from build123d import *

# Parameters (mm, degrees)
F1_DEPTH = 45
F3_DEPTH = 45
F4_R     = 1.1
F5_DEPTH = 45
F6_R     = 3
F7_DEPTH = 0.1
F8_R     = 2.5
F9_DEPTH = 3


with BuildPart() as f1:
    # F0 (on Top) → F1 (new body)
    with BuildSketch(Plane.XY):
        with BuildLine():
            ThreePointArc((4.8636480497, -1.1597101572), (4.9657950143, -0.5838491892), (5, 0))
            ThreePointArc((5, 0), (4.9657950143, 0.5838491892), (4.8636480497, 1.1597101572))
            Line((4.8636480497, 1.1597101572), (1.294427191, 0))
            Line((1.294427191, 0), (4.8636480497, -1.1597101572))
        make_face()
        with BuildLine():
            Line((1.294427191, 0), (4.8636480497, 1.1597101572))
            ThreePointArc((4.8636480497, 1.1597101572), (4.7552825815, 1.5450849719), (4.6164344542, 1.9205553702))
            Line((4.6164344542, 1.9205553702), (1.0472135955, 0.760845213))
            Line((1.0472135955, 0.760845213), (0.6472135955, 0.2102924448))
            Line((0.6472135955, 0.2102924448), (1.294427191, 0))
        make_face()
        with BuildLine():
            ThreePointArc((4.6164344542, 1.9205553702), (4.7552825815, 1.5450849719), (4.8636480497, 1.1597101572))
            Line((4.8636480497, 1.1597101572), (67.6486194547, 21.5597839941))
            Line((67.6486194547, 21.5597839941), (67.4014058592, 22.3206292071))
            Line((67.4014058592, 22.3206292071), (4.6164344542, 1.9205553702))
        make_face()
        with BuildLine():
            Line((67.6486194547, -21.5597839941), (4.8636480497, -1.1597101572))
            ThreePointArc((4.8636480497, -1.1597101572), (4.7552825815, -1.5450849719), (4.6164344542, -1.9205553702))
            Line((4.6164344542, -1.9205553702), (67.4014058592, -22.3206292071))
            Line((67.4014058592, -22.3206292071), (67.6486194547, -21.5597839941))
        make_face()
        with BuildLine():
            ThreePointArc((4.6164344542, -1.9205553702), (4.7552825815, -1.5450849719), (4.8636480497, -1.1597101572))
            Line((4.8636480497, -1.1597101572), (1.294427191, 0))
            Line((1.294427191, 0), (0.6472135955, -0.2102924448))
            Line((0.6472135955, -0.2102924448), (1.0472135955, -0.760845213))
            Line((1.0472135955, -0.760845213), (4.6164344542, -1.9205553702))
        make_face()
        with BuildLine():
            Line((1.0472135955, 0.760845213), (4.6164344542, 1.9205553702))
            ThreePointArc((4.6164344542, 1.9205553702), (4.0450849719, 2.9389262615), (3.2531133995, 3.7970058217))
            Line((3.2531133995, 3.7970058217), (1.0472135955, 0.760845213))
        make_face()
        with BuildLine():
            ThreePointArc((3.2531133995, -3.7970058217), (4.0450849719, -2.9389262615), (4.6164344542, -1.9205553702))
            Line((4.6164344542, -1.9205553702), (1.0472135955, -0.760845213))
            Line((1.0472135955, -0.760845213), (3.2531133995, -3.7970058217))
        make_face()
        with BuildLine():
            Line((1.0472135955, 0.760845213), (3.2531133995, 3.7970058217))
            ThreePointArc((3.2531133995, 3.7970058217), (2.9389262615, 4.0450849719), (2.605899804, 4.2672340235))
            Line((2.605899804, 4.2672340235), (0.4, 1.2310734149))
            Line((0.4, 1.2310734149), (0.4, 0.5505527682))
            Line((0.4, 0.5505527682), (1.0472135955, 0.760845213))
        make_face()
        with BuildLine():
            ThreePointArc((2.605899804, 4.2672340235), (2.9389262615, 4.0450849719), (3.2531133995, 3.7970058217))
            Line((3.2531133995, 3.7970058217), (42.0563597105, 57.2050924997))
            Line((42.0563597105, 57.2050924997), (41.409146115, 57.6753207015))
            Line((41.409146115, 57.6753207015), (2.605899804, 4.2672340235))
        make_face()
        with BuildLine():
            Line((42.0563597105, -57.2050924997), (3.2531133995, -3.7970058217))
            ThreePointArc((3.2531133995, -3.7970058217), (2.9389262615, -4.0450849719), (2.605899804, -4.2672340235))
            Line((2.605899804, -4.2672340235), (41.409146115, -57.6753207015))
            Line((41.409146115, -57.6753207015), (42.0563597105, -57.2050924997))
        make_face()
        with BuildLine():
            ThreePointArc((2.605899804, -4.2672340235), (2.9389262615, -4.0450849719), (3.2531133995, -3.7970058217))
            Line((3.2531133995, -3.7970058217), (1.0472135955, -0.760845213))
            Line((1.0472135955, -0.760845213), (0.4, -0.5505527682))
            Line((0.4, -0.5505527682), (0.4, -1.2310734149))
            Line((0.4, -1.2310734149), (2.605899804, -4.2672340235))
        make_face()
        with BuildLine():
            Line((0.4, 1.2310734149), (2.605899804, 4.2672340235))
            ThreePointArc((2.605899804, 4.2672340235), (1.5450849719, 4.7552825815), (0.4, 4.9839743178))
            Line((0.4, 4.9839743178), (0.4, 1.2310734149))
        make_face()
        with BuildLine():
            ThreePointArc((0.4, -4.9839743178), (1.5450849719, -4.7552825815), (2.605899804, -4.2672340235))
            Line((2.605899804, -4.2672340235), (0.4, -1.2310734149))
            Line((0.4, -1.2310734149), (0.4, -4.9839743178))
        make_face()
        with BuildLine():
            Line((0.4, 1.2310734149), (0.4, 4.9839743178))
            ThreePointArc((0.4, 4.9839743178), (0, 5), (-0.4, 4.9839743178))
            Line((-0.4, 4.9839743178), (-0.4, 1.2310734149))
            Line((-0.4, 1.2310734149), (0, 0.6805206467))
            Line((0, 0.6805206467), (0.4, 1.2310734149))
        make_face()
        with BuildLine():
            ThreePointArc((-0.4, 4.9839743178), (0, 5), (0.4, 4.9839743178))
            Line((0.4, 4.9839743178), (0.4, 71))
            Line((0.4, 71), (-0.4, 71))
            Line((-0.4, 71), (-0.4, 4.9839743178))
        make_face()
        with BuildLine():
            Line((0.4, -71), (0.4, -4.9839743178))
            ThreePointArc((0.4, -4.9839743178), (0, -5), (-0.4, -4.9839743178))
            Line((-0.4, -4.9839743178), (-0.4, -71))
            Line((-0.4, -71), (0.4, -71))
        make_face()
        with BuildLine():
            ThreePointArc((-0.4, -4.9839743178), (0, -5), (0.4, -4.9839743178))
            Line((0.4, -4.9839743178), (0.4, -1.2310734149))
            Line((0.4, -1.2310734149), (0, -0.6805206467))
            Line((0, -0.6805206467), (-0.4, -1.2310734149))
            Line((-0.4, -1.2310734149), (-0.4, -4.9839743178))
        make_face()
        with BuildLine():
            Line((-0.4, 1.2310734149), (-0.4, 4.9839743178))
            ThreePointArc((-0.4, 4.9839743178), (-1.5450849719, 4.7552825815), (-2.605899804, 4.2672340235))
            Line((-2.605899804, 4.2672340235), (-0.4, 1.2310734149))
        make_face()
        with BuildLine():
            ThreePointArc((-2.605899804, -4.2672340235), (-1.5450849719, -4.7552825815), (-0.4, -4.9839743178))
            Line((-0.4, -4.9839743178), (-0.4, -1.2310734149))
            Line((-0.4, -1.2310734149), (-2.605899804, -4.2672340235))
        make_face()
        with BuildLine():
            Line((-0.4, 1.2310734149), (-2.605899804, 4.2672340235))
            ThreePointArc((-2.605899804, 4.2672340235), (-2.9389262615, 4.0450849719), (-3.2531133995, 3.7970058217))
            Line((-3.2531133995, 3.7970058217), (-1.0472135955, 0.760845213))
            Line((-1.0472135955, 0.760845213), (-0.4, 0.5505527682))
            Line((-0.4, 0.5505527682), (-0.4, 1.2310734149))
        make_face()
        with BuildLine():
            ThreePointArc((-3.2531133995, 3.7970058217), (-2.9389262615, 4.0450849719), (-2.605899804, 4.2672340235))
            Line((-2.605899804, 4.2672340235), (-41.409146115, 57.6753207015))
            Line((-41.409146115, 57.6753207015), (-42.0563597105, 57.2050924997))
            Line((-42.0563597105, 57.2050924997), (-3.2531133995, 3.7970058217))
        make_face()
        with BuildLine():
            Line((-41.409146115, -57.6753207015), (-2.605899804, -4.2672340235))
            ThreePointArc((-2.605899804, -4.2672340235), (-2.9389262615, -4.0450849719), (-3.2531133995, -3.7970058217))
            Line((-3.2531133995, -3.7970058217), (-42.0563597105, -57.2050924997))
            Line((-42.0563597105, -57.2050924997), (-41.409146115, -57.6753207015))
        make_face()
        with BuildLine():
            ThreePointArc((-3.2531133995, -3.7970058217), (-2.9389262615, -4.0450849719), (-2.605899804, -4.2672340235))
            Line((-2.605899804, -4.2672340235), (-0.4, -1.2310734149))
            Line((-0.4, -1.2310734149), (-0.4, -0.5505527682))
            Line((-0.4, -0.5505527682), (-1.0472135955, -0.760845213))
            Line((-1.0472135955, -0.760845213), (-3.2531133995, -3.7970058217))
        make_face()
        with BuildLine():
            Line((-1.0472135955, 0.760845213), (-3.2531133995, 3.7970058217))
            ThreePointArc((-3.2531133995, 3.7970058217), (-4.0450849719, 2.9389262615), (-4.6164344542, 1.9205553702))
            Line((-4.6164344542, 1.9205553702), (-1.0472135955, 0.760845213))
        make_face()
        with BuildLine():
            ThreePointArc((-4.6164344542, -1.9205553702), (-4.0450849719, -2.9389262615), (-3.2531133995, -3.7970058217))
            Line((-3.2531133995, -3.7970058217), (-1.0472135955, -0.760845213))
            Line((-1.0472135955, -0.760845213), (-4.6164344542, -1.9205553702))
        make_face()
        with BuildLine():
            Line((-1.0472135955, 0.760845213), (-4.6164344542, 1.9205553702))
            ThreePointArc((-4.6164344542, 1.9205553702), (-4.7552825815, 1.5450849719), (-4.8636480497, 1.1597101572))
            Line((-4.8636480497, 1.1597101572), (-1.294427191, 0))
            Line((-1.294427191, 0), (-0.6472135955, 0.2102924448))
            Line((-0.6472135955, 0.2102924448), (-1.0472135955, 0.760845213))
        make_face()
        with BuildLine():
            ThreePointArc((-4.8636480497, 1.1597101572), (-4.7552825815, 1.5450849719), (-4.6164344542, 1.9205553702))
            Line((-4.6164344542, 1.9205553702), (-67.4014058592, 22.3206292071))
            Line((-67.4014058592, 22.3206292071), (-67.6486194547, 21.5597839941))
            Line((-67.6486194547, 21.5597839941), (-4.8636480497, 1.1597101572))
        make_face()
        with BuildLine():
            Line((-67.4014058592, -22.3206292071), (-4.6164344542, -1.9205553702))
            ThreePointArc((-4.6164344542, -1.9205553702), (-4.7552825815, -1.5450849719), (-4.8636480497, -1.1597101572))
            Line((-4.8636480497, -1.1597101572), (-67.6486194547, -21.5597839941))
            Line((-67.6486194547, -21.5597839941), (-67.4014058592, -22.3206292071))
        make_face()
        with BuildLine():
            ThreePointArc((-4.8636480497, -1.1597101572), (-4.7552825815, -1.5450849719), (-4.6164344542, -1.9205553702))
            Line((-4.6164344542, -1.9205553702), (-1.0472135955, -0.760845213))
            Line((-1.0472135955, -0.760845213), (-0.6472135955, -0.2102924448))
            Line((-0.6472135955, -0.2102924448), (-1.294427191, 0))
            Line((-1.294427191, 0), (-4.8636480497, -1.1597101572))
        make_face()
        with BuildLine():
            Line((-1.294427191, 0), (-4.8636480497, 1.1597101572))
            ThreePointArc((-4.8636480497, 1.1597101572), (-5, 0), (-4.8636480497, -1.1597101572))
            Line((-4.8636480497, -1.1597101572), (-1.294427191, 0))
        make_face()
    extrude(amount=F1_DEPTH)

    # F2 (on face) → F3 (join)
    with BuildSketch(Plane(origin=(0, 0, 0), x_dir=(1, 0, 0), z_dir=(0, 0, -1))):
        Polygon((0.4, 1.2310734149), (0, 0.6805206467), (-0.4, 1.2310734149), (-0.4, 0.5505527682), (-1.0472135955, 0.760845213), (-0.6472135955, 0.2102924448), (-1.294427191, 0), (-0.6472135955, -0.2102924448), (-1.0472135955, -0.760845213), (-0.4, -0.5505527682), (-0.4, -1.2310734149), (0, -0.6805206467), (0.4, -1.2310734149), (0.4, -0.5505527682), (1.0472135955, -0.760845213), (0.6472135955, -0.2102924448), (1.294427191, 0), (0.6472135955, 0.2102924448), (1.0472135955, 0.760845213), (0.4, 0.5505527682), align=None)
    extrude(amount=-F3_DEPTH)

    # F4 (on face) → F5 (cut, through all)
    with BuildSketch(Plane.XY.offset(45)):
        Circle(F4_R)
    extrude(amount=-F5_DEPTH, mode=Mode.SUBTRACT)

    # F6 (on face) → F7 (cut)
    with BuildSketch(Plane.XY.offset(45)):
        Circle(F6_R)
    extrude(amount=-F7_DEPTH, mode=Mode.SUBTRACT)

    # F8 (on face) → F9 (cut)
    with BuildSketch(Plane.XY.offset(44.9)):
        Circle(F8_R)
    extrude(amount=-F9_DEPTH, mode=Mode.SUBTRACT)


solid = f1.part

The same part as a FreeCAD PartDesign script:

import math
import FreeCAD as App
import Part
import Sketcher
Q = App.Units.Quantity

doc = App.newDocument("Part")
body = doc.addObject("PartDesign::Body", "Body")

sketch1 = doc.addObject("Sketcher::SketchObject", "Sketch")
body.addObject(sketch1)
sketch1.AttachmentSupport = (doc.XY_Plane, [""])
sketch1.MapMode = "FlatFace"
sketch1.addGeometry(Part.LineSegment(App.Vector(-67.6, 21.6, 0), App.Vector(-4.9, 1.2, 0)), False)
sketch1.addGeometry(Part.ArcOfCircle(Part.Circle(App.Vector(0, 0, 0), App.Vector(0, 0, 1), 5), math.radians(167), math.radians(193)), False)
sketch1.addGeometry(Part.LineSegment(App.Vector(-4.9, -1.2, 0), App.Vector(-67.6, -21.6, 0)), False)
sketch1.addGeometry(Part.LineSegment(App.Vector(-67.6, -21.6, 0), App.Vector(-67.4, -22.3, 0)), False)
sketch1.addGeometry(Part.LineSegment(App.Vector(-67.4, -22.3, 0), App.Vector(-4.6, -1.9, 0)), False)
sketch1.addGeometry(Part.ArcOfCircle(Part.Circle(App.Vector(0, 0, 0), App.Vector(0, 0, 1), 5), math.radians(-157), math.radians(-131)), False)
sketch1.addGeometry(Part.LineSegment(App.Vector(-3.3, -3.8, 0), App.Vector(-42.1, -57.2, 0)), False)
sketch1.addGeometry(Part.LineSegment(App.Vector(-42.1, -57.2, 0), App.Vector(-41.4, -57.7, 0)), False)
sketch1.addGeometry(Part.LineSegment(App.Vector(-41.4, -57.7, 0), App.Vector(-2.6, -4.3, 0)), False)
sketch1.addGeometry(Part.ArcOfCircle(Part.Circle(App.Vector(0, 0, 0), App.Vector(0, 0, 1), 5), math.radians(-121), math.radians(-95)), False)
sketch1.addGeometry(Part.LineSegment(App.Vector(-0.4, -5, 0), App.Vector(-0.4, -71, 0)), False)
sketch1.addGeometry(Part.LineSegment(App.Vector(-0.4, -71, 0), App.Vector(0.4, -71, 0)), False)
sketch1.addGeometry(Part.LineSegment(App.Vector(0.4, -71, 0), App.Vector(0.4, -5, 0)), False)
sketch1.addGeometry(Part.ArcOfCircle(Part.Circle(App.Vector(0, 0, 0), App.Vector(0, 0, 1), 5), math.radians(-85), math.radians(-59)), False)
sketch1.addGeometry(Part.LineSegment(App.Vector(2.6, -4.3, 0), App.Vector(41.4, -57.7, 0)), False)
sketch1.addGeometry(Part.LineSegment(App.Vector(41.4, -57.7, 0), App.Vector(42.1, -57.2, 0)), False)
sketch1.addGeometry(Part.LineSegment(App.Vector(42.1, -57.2, 0), App.Vector(3.3, -3.8, 0)), False)
sketch1.addGeometry(Part.ArcOfCircle(Part.Circle(App.Vector(0, 0, 0), App.Vector(0, 0, 1), 5), math.radians(-49), math.radians(-23)), False)
sketch1.addGeometry(Part.LineSegment(App.Vector(4.6, -1.9, 0), App.Vector(67.4, -22.3, 0)), False)
sketch1.addGeometry(Part.LineSegment(App.Vector(67.4, -22.3, 0), App.Vector(67.6, -21.6, 0)), False)
sketch1.addGeometry(Part.LineSegment(App.Vector(67.6, -21.6, 0), App.Vector(4.9, -1.2, 0)), False)
sketch1.addGeometry(Part.ArcOfCircle(Part.Circle(App.Vector(0, 0, 0), App.Vector(0, 0, 1), 5), math.radians(-13.41), math.radians(0)), False)
sketch1.addGeometry(Part.ArcOfCircle(Part.Circle(App.Vector(0, 0, 0), App.Vector(0, 0, 1), 5), math.radians(0), math.radians(13.41)), False)
sketch1.addGeometry(Part.LineSegment(App.Vector(4.9, 1.2, 0), App.Vector(67.6, 21.6, 0)), False)
sketch1.addGeometry(Part.LineSegment(App.Vector(67.6, 21.6, 0), App.Vector(67.4, 22.3, 0)), False)
sketch1.addGeometry(Part.LineSegment(App.Vector(67.4, 22.3, 0), App.Vector(4.6, 1.9, 0)), False)
sketch1.addGeometry(Part.ArcOfCircle(Part.Circle(App.Vector(0, 0, 0), App.Vector(0, 0, 1), 5), math.radians(23), math.radians(49)), False)
sketch1.addGeometry(Part.LineSegment(App.Vector(3.3, 3.8, 0), App.Vector(42.1, 57.2, 0)), False)
sketch1.addGeometry(Part.LineSegment(App.Vector(42.1, 57.2, 0), App.Vector(41.4, 57.7, 0)), False)
sketch1.addGeometry(Part.LineSegment(App.Vector(41.4, 57.7, 0), App.Vector(2.6, 4.3, 0)), False)
sketch1.addGeometry(Part.ArcOfCircle(Part.Circle(App.Vector(0, 0, 0), App.Vector(0, 0, 1), 5), math.radians(59), math.radians(85)), False)
sketch1.addGeometry(Part.LineSegment(App.Vector(0.4, 5, 0), App.Vector(0.4, 71, 0)), False)
sketch1.addGeometry(Part.LineSegment(App.Vector(0.4, 71, 0), App.Vector(-0.4, 71, 0)), False)
sketch1.addGeometry(Part.LineSegment(App.Vector(-0.4, 71, 0), App.Vector(-0.4, 5, 0)), False)
sketch1.addGeometry(Part.ArcOfCircle(Part.Circle(App.Vector(0, 0, 0), App.Vector(0, 0, 1), 5), math.radians(95), math.radians(121)), False)
sketch1.addGeometry(Part.LineSegment(App.Vector(-2.6, 4.3, 0), App.Vector(-41.4, 57.7, 0)), False)
sketch1.addGeometry(Part.LineSegment(App.Vector(-41.4, 57.7, 0), App.Vector(-42.1, 57.2, 0)), False)
sketch1.addGeometry(Part.LineSegment(App.Vector(-42.1, 57.2, 0), App.Vector(-3.3, 3.8, 0)), False)
sketch1.addGeometry(Part.ArcOfCircle(Part.Circle(App.Vector(0, 0, 0), App.Vector(0, 0, 1), 5), math.radians(131), math.radians(157)), False)
sketch1.addGeometry(Part.LineSegment(App.Vector(-4.6, 1.9, 0), App.Vector(-67.4, 22.3, 0)), False)
sketch1.addGeometry(Part.LineSegment(App.Vector(-67.4, 22.3, 0), App.Vector(-67.6, 21.6, 0)), False)
sketch1.addGeometry(Part.LineSegment(App.Vector(-0.6, -0.2, 0), App.Vector(-1.3, 0, 0)), False)
sketch1.addGeometry(Part.LineSegment(App.Vector(-1.3, 0, 0), App.Vector(-0.6, 0.2, 0)), False)
sketch1.addGeometry(Part.LineSegment(App.Vector(-0.6, 0.2, 0), App.Vector(-1, 0.8, 0)), False)
sketch1.addGeometry(Part.LineSegment(App.Vector(-1, 0.8, 0), App.Vector(-0.4, 0.6, 0)), False)
sketch1.addGeometry(Part.LineSegment(App.Vector(-0.4, 0.6, 0), App.Vector(-0.4, 1.2, 0)), False)
sketch1.addGeometry(Part.LineSegment(App.Vector(-0.4, 1.2, 0), App.Vector(0, 0.7, 0)), False)
sketch1.addGeometry(Part.LineSegment(App.Vector(0, 0.7, 0), App.Vector(0.4, 1.2, 0)), False)
sketch1.addGeometry(Part.LineSegment(App.Vector(0.4, 1.2, 0), App.Vector(0.4, 0.6, 0)), False)
sketch1.addGeometry(Part.LineSegment(App.Vector(0.4, 0.6, 0), App.Vector(1, 0.8, 0)), False)
sketch1.addGeometry(Part.LineSegment(App.Vector(1, 0.8, 0), App.Vector(0.6, 0.2, 0)), False)
sketch1.addGeometry(Part.LineSegment(App.Vector(0.6, 0.2, 0), App.Vector(1.3, 0, 0)), False)
sketch1.addGeometry(Part.LineSegment(App.Vector(1.3, 0, 0), App.Vector(0.6, -0.2, 0)), False)
sketch1.addGeometry(Part.LineSegment(App.Vector(0.6, -0.2, 0), App.Vector(1, -0.8, 0)), False)
sketch1.addGeometry(Part.LineSegment(App.Vector(1, -0.8, 0), App.Vector(0.4, -0.6, 0)), False)
sketch1.addGeometry(Part.LineSegment(App.Vector(0.4, -0.6, 0), App.Vector(0.4, -1.2, 0)), False)
sketch1.addGeometry(Part.LineSegment(App.Vector(0.4, -1.2, 0), App.Vector(0, -0.7, 0)), False)
sketch1.addGeometry(Part.LineSegment(App.Vector(0, -0.7, 0), App.Vector(-0.4, -1.2, 0)), False)
sketch1.addGeometry(Part.LineSegment(App.Vector(-0.4, -1.2, 0), App.Vector(-0.4, -0.6, 0)), False)
sketch1.addGeometry(Part.LineSegment(App.Vector(-0.4, -0.6, 0), App.Vector(-1, -0.8, 0)), False)
sketch1.addGeometry(Part.LineSegment(App.Vector(-1, -0.8, 0), App.Vector(-0.6, -0.2, 0)), False)
sketch1.addConstraint(Sketcher.Constraint("Coincident", 0, 2, 1, 1))
sketch1.addConstraint(Sketcher.Constraint("Coincident", 1, 2, 2, 1))
sketch1.addConstraint(Sketcher.Constraint("Coincident", 2, 2, 3, 1))
sketch1.addConstraint(Sketcher.Constraint("Coincident", 3, 2, 4, 1))
sketch1.addConstraint(Sketcher.Constraint("Coincident", 4, 2, 5, 1))
sketch1.addConstraint(Sketcher.Constraint("Coincident", 5, 2, 6, 1))
sketch1.addConstraint(Sketcher.Constraint("Coincident", 6, 2, 7, 1))
sketch1.addConstraint(Sketcher.Constraint("Coincident", 7, 2, 8, 1))
sketch1.addConstraint(Sketcher.Constraint("Coincident", 8, 2, 9, 1))
sketch1.addConstraint(Sketcher.Constraint("Coincident", 9, 2, 10, 1))
sketch1.addConstraint(Sketcher.Constraint("Coincident", 10, 2, 11, 1))
sketch1.addConstraint(Sketcher.Constraint("Coincident", 11, 2, 12, 1))
sketch1.addConstraint(Sketcher.Constraint("Coincident", 12, 2, 13, 1))
sketch1.addConstraint(Sketcher.Constraint("Coincident", 13, 2, 14, 1))
sketch1.addConstraint(Sketcher.Constraint("Coincident", 14, 2, 15, 1))
sketch1.addConstraint(Sketcher.Constraint("Coincident", 15, 2, 16, 1))
sketch1.addConstraint(Sketcher.Constraint("Coincident", 16, 2, 17, 1))
sketch1.addConstraint(Sketcher.Constraint("Coincident", 17, 2, 18, 1))
sketch1.addConstraint(Sketcher.Constraint("Coincident", 18, 2, 19, 1))
sketch1.addConstraint(Sketcher.Constraint("Coincident", 19, 2, 20, 1))
sketch1.addConstraint(Sketcher.Constraint("Coincident", 20, 2, 21, 1))
sketch1.addConstraint(Sketcher.Constraint("Tangent", 21, 2, 22, 1))
sketch1.addConstraint(Sketcher.Constraint("Coincident", 22, 2, 23, 1))
sketch1.addConstraint(Sketcher.Constraint("Coincident", 23, 2, 24, 1))
sketch1.addConstraint(Sketcher.Constraint("Coincident", 24, 2, 25, 1))
sketch1.addConstraint(Sketcher.Constraint("Coincident", 25, 2, 26, 1))
sketch1.addConstraint(Sketcher.Constraint("Coincident", 26, 2, 27, 1))
sketch1.addConstraint(Sketcher.Constraint("Coincident", 27, 2, 28, 1))
sketch1.addConstraint(Sketcher.Constraint("Coincident", 28, 2, 29, 1))
sketch1.addConstraint(Sketcher.Constraint("Coincident", 29, 2, 30, 1))
sketch1.addConstraint(Sketcher.Constraint("Coincident", 30, 2, 31, 1))
sketch1.addConstraint(Sketcher.Constraint("Coincident", 31, 2, 32, 1))
sketch1.addConstraint(Sketcher.Constraint("Coincident", 32, 2, 33, 1))
sketch1.addConstraint(Sketcher.Constraint("Coincident", 33, 2, 34, 1))
sketch1.addConstraint(Sketcher.Constraint("Coincident", 34, 2, 35, 1))
sketch1.addConstraint(Sketcher.Constraint("Coincident", 35, 2, 36, 1))
sketch1.addConstraint(Sketcher.Constraint("Coincident", 36, 2, 37, 1))
sketch1.addConstraint(Sketcher.Constraint("Coincident", 37, 2, 38, 1))
sketch1.addConstraint(Sketcher.Constraint("Coincident", 38, 2, 39, 1))
sketch1.addConstraint(Sketcher.Constraint("Coincident", 39, 2, 40, 1))
sketch1.addConstraint(Sketcher.Constraint("Coincident", 40, 2, 0, 1))
sketch1.addConstraint(Sketcher.Constraint("Coincident", 41, 2, 42, 1))
sketch1.addConstraint(Sketcher.Constraint("Coincident", 42, 2, 43, 1))
sketch1.addConstraint(Sketcher.Constraint("Coincident", 43, 2, 44, 1))
sketch1.addConstraint(Sketcher.Constraint("Coincident", 44, 2, 45, 1))
sketch1.addConstraint(Sketcher.Constraint("Coincident", 45, 2, 46, 1))
sketch1.addConstraint(Sketcher.Constraint("Coincident", 46, 2, 47, 1))
sketch1.addConstraint(Sketcher.Constraint("Coincident", 47, 2, 48, 1))
sketch1.addConstraint(Sketcher.Constraint("Coincident", 48, 2, 49, 1))
sketch1.addConstraint(Sketcher.Constraint("Coincident", 49, 2, 50, 1))
sketch1.addConstraint(Sketcher.Constraint("Coincident", 50, 2, 51, 1))
sketch1.addConstraint(Sketcher.Constraint("Coincident", 51, 2, 52, 1))
sketch1.addConstraint(Sketcher.Constraint("Coincident", 52, 2, 53, 1))
sketch1.addConstraint(Sketcher.Constraint("Coincident", 53, 2, 54, 1))
sketch1.addConstraint(Sketcher.Constraint("Coincident", 54, 2, 55, 1))
sketch1.addConstraint(Sketcher.Constraint("Coincident", 55, 2, 56, 1))
sketch1.addConstraint(Sketcher.Constraint("Coincident", 56, 2, 57, 1))
sketch1.addConstraint(Sketcher.Constraint("Coincident", 57, 2, 58, 1))
sketch1.addConstraint(Sketcher.Constraint("Coincident", 58, 2, 59, 1))
sketch1.addConstraint(Sketcher.Constraint("Coincident", 59, 2, 60, 1))
sketch1.addConstraint(Sketcher.Constraint("Coincident", 60, 2, 41, 1))
sketch1.addConstraint(Sketcher.Constraint("Vertical", 10))
sketch1.addConstraint(Sketcher.Constraint("Horizontal", 11))
sketch1.addConstraint(Sketcher.Constraint("Vertical", 12))
sketch1.addConstraint(Sketcher.Constraint("Vertical", 31))
sketch1.addConstraint(Sketcher.Constraint("Horizontal", 32))
sketch1.addConstraint(Sketcher.Constraint("Vertical", 33))
sketch1.addConstraint(Sketcher.Constraint("Vertical", 45))
sketch1.addConstraint(Sketcher.Constraint("Vertical", 48))
sketch1.addConstraint(Sketcher.Constraint("Vertical", 55))
sketch1.addConstraint(Sketcher.Constraint("Vertical", 58))
sketch1.addConstraint(Sketcher.Constraint("Coincident", 1, 3, -1, 1))
sketch1.addConstraint(Sketcher.Constraint("Coincident", 5, 3, -1, 1))
sketch1.addConstraint(Sketcher.Constraint("Coincident", 9, 3, -1, 1))
sketch1.addConstraint(Sketcher.Constraint("Coincident", 13, 3, -1, 1))
sketch1.addConstraint(Sketcher.Constraint("Coincident", 17, 3, -1, 1))
sketch1.addConstraint(Sketcher.Constraint("Coincident", 21, 3, -1, 1))
sketch1.addConstraint(Sketcher.Constraint("Coincident", 26, 3, -1, 1))
sketch1.addConstraint(Sketcher.Constraint("Coincident", 30, 3, -1, 1))
sketch1.addConstraint(Sketcher.Constraint("Coincident", 34, 3, -1, 1))
sketch1.addConstraint(Sketcher.Constraint("Coincident", 38, 3, -1, 1))
sketch1.addConstraint(Sketcher.Constraint("Equal", 1, 5))
sketch1.addConstraint(Sketcher.Constraint("Equal", 5, 9))
sketch1.addConstraint(Sketcher.Constraint("Equal", 9, 13))
sketch1.addConstraint(Sketcher.Constraint("Equal", 13, 17))
sketch1.addConstraint(Sketcher.Constraint("Equal", 17, 21))
sketch1.addConstraint(Sketcher.Constraint("Equal", 21, 22))
sketch1.addConstraint(Sketcher.Constraint("Equal", 22, 26))
sketch1.addConstraint(Sketcher.Constraint("Equal", 26, 30))
sketch1.addConstraint(Sketcher.Constraint("Equal", 30, 34))
sketch1.addConstraint(Sketcher.Constraint("Equal", 34, 38))
sketch1.addConstraint(Sketcher.Constraint("Symmetric", 2, 2, 23, 2, -1, 1))
sketch1.addConstraint(Sketcher.Constraint("Symmetric", 3, 2, 24, 2, -1, 1))
sketch1.addConstraint(Sketcher.Constraint("Symmetric", 6, 2, 27, 2, -1, 1))
sketch1.addConstraint(Sketcher.Constraint("Symmetric", 7, 2, 28, 2, -1, 1))
sketch1.addConstraint(Sketcher.Constraint("Symmetric", 10, 2, 31, 2, -1, 1))
sketch1.addConstraint(Sketcher.Constraint("Symmetric", 14, 2, 35, 2, -1, 1))
sketch1.addConstraint(Sketcher.Constraint("Symmetric", 15, 2, 36, 2, -1, 1))
sketch1.addConstraint(Sketcher.Constraint("Symmetric", 18, 2, 39, 2, -1, 1))
sketch1.addConstraint(Sketcher.Constraint("Symmetric", 19, 2, 40, 2, -1, 1))
sketch1.addConstraint(Sketcher.Constraint("Symmetric", 41, 2, 51, 2, -1, 1))
sketch1.addConstraint(Sketcher.Constraint("Symmetric", 42, 2, 52, 2, -1, 1))
sketch1.addConstraint(Sketcher.Constraint("Symmetric", 43, 2, 53, 2, -1, 1))
sketch1.addConstraint(Sketcher.Constraint("Symmetric", 44, 2, 54, 2, -1, 1))
sketch1.addConstraint(Sketcher.Constraint("Symmetric", 46, 2, 56, 2, -1, 1))
sketch1.addConstraint(Sketcher.Constraint("Symmetric", 47, 2, 57, 2, -1, 1))
sketch1.addConstraint(Sketcher.Constraint("Symmetric", 49, 2, 59, 2, -1, 1))
sketch1.addConstraint(Sketcher.Constraint("Symmetric", 50, 2, 60, 2, -1, 1))
sketch1.addConstraint(Sketcher.Constraint("Symmetric", 7, 2, 14, 2, -2))
sketch1.addConstraint(Sketcher.Constraint("Symmetric", 6, 2, 15, 2, -2))
sketch1.addConstraint(Sketcher.Constraint("Symmetric", 3, 2, 18, 2, -2))
sketch1.addConstraint(Sketcher.Constraint("Symmetric", 2, 2, 19, 2, -2))
sketch1.addConstraint(Sketcher.Constraint("Symmetric", 45, 2, 47, 2, -2))
sketch1.addConstraint(Sketcher.Constraint("Symmetric", 43, 2, 49, 2, -2))
sketch1.addConstraint(Sketcher.Constraint("Symmetric", 42, 2, 50, 2, -2))
sketch1.addConstraint(Sketcher.Constraint("PointOnObject", 21, 2, -1))
sketch1.addConstraint(Sketcher.Constraint("PointOnObject", 41, 2, -1))
sketch1.addConstraint(Sketcher.Constraint("PointOnObject", 46, 2, -2))
sketch1.addConstraint(Sketcher.Constraint("Perpendicular", 2, 3))
sketch1.addConstraint(Sketcher.Constraint("Perpendicular", 3, 4))
sketch1.addConstraint(Sketcher.Constraint("Perpendicular", 6, 7))
sketch1.addConstraint(Sketcher.Constraint("Perpendicular", 7, 8))
sketch1.addConstraint(Sketcher.Constraint("Perpendicular", 14, 15))
sketch1.addConstraint(Sketcher.Constraint("Perpendicular", 15, 16))
sketch1.addConstraint(Sketcher.Constraint("Parallel", 0, 18))
sketch1.addConstraint(Sketcher.Constraint("Perpendicular", 18, 19))
sketch1.addConstraint(Sketcher.Constraint("Perpendicular", 19, 20))
sketch1.addConstraint(Sketcher.Constraint("Parallel", 4, 23))
sketch1.addConstraint(Sketcher.Constraint("Perpendicular", 24, 25))
sketch1.addConstraint(Sketcher.Constraint("Parallel", 8, 27))
sketch1.addConstraint(Sketcher.Constraint("Perpendicular", 28, 29))
sketch1.addConstraint(Sketcher.Constraint("Parallel", 16, 35))
sketch1.addConstraint(Sketcher.Constraint("Perpendicular", 36, 37))
sketch1.addConstraint(Sketcher.Constraint("Parallel", 20, 39))
sketch1.addConstraint(Sketcher.Constraint("Perpendicular", 40, 41))
sketch1.addConstraint(Sketcher.Constraint("Parallel", 37, 43))
sketch1.addConstraint(Sketcher.Constraint("Parallel", 41, 44))
sketch1.addConstraint(Sketcher.Constraint("Parallel", 43, 46))
sketch1.addConstraint(Sketcher.Constraint("Parallel", 42, 49))
sketch1.addConstraint(Sketcher.Constraint("Parallel", 53, 56))
sketch1.addConstraint(Sketcher.Constraint("Parallel", 52, 59))
sketch1.addConstraint(Sketcher.Constraint("Horizontal", 9, 2, 12, 2))
sketch1.addConstraint(Sketcher.Constraint("Horizontal", 30, 2, 33, 2))
sketch1.addConstraint(Sketcher.Constraint("Vertical", 33, 2, 44, 2))
sketch1.addConstraint(Sketcher.Constraint("Equal", 2, 4))
sketch1.addConstraint(Sketcher.Constraint("Equal", 4, 6))
sketch1.addConstraint(Sketcher.Constraint("Equal", 3, 7))
sketch1.addConstraint(Sketcher.Constraint("Equal", 6, 8))
sketch1.addConstraint(Sketcher.Constraint("Equal", 42, 43))
sketch1.addConstraint(Sketcher.Constraint("Equal", 43, 44))
sketch1.addConstraint(Sketcher.Constraint("Equal", 44, 46))
sketch1.addConstraint(Sketcher.Constraint("Radius", 1, 5.0))
sketch1.addConstraint(Sketcher.Constraint("Angle", 0, Q("-18 deg")))
sketch1.addConstraint(Sketcher.Constraint("Angle", 6, Q("-126 deg")))
sketch1.addConstraint(Sketcher.Constraint("DistanceX", 11, 1, 11, 2, 0.8))
sketch1.addConstraint(Sketcher.Constraint("DistanceY", 10, 2, -1, 1, 71.0))
sketch1.addConstraint(Sketcher.Constraint("Distance", 3, 0.8))
sketch1.addConstraint(Sketcher.Constraint("DistanceY", 45, 1, 45, 2, 0.680521))
sketch1.addConstraint(Sketcher.Constraint("DistanceX", 2, 2, -1, 1, 67.648619))
pad1 = doc.addObject("PartDesign::Pad", "Pad")
body.addObject(pad1)
pad1.Profile = sketch1
pad1.Length = 45

sketch2 = doc.addObject("Sketcher::SketchObject", "Sketch001")
body.addObject(sketch2)
sketch2.AttachmentSupport = (doc.XY_Plane, [""])
sketch2.MapMode = "FlatFace"
sketch2.addGeometry(Part.LineSegment(App.Vector(0.4, -1.2, 0), App.Vector(0, -0.7, 0)), False)
sketch2.addGeometry(Part.LineSegment(App.Vector(0, -0.7, 0), App.Vector(-0.4, -1.2, 0)), False)
sketch2.addGeometry(Part.LineSegment(App.Vector(-0.4, -1.2, 0), App.Vector(-0.4, -0.6, 0)), False)
sketch2.addGeometry(Part.LineSegment(App.Vector(-0.4, -0.6, 0), App.Vector(-1, -0.8, 0)), False)
sketch2.addGeometry(Part.LineSegment(App.Vector(-1, -0.8, 0), App.Vector(-0.6, -0.2, 0)), False)
sketch2.addGeometry(Part.LineSegment(App.Vector(-0.6, -0.2, 0), App.Vector(-1.3, 0, 0)), False)
sketch2.addGeometry(Part.LineSegment(App.Vector(-1.3, 0, 0), App.Vector(-0.6, 0.2, 0)), False)
sketch2.addGeometry(Part.LineSegment(App.Vector(-0.6, 0.2, 0), App.Vector(-1, 0.8, 0)), False)
sketch2.addGeometry(Part.LineSegment(App.Vector(-1, 0.8, 0), App.Vector(-0.4, 0.6, 0)), False)
sketch2.addGeometry(Part.LineSegment(App.Vector(-0.4, 0.6, 0), App.Vector(-0.4, 1.2, 0)), False)
sketch2.addGeometry(Part.LineSegment(App.Vector(-0.4, 1.2, 0), App.Vector(0, 0.7, 0)), False)
sketch2.addGeometry(Part.LineSegment(App.Vector(0, 0.7, 0), App.Vector(0.4, 1.2, 0)), False)
sketch2.addGeometry(Part.LineSegment(App.Vector(0.4, 1.2, 0), App.Vector(0.4, 0.6, 0)), False)
sketch2.addGeometry(Part.LineSegment(App.Vector(0.4, 0.6, 0), App.Vector(1, 0.8, 0)), False)
sketch2.addGeometry(Part.LineSegment(App.Vector(1, 0.8, 0), App.Vector(0.6, 0.2, 0)), False)
sketch2.addGeometry(Part.LineSegment(App.Vector(0.6, 0.2, 0), App.Vector(1.3, 0, 0)), False)
sketch2.addGeometry(Part.LineSegment(App.Vector(1.3, 0, 0), App.Vector(0.6, -0.2, 0)), False)
sketch2.addGeometry(Part.LineSegment(App.Vector(0.6, -0.2, 0), App.Vector(1, -0.8, 0)), False)
sketch2.addGeometry(Part.LineSegment(App.Vector(1, -0.8, 0), App.Vector(0.4, -0.6, 0)), False)
sketch2.addGeometry(Part.LineSegment(App.Vector(0.4, -0.6, 0), App.Vector(0.4, -1.2, 0)), False)
sketch2.addConstraint(Sketcher.Constraint("Coincident", 0, 2, 1, 1))
sketch2.addConstraint(Sketcher.Constraint("Coincident", 1, 2, 2, 1))
sketch2.addConstraint(Sketcher.Constraint("Coincident", 2, 2, 3, 1))
sketch2.addConstraint(Sketcher.Constraint("Coincident", 3, 2, 4, 1))
sketch2.addConstraint(Sketcher.Constraint("Coincident", 4, 2, 5, 1))
sketch2.addConstraint(Sketcher.Constraint("Coincident", 5, 2, 6, 1))
sketch2.addConstraint(Sketcher.Constraint("Coincident", 6, 2, 7, 1))
sketch2.addConstraint(Sketcher.Constraint("Coincident", 7, 2, 8, 1))
sketch2.addConstraint(Sketcher.Constraint("Coincident", 8, 2, 9, 1))
sketch2.addConstraint(Sketcher.Constraint("Coincident", 9, 2, 10, 1))
sketch2.addConstraint(Sketcher.Constraint("Coincident", 10, 2, 11, 1))
sketch2.addConstraint(Sketcher.Constraint("Coincident", 11, 2, 12, 1))
sketch2.addConstraint(Sketcher.Constraint("Coincident", 12, 2, 13, 1))
sketch2.addConstraint(Sketcher.Constraint("Coincident", 13, 2, 14, 1))
sketch2.addConstraint(Sketcher.Constraint("Coincident", 14, 2, 15, 1))
sketch2.addConstraint(Sketcher.Constraint("Coincident", 15, 2, 16, 1))
sketch2.addConstraint(Sketcher.Constraint("Coincident", 16, 2, 17, 1))
sketch2.addConstraint(Sketcher.Constraint("Coincident", 17, 2, 18, 1))
sketch2.addConstraint(Sketcher.Constraint("Coincident", 18, 2, 19, 1))
sketch2.addConstraint(Sketcher.Constraint("Coincident", 19, 2, 0, 1))
sketch2.addConstraint(Sketcher.Constraint("Vertical", 2))
sketch2.addConstraint(Sketcher.Constraint("Vertical", 9))
sketch2.addConstraint(Sketcher.Constraint("Vertical", 12))
sketch2.addConstraint(Sketcher.Constraint("Vertical", 19))
sketch2.addConstraint(Sketcher.Constraint("Symmetric", 0, 2, 10, 2, -1, 1))
sketch2.addConstraint(Sketcher.Constraint("Symmetric", 1, 2, 11, 2, -1, 1))
sketch2.addConstraint(Sketcher.Constraint("Symmetric", 3, 2, 13, 2, -1, 1))
sketch2.addConstraint(Sketcher.Constraint("Symmetric", 4, 2, 14, 2, -1, 1))
sketch2.addConstraint(Sketcher.Constraint("Symmetric", 5, 2, 15, 2, -1, 1))
sketch2.addConstraint(Sketcher.Constraint("Symmetric", 6, 2, 16, 2, -1, 1))
sketch2.addConstraint(Sketcher.Constraint("Symmetric", 7, 2, 17, 2, -1, 1))
sketch2.addConstraint(Sketcher.Constraint("Symmetric", 8, 2, 18, 2, -1, 1))
sketch2.addConstraint(Sketcher.Constraint("Symmetric", 9, 2, 11, 2, -2))
sketch2.addConstraint(Sketcher.Constraint("Symmetric", 7, 2, 13, 2, -2))
sketch2.addConstraint(Sketcher.Constraint("Symmetric", 6, 2, 14, 2, -2))
sketch2.addConstraint(Sketcher.Constraint("PointOnObject", 0, 2, -2))
sketch2.addConstraint(Sketcher.Constraint("PointOnObject", 5, 2, -1))
sketch2.addConstraint(Sketcher.Constraint("Parallel", 1, 4))
sketch2.addConstraint(Sketcher.Constraint("Parallel", 3, 6))
sketch2.addConstraint(Sketcher.Constraint("Parallel", 0, 7))
sketch2.addConstraint(Sketcher.Constraint("Parallel", 5, 8))
sketch2.addConstraint(Sketcher.Constraint("Parallel", 6, 13))
sketch2.addConstraint(Sketcher.Constraint("Equal", 1, 3))
sketch2.addConstraint(Sketcher.Constraint("Equal", 3, 4))
sketch2.addConstraint(Sketcher.Constraint("Equal", 4, 5))
sketch2.addConstraint(Sketcher.Constraint("Angle", 0, Q("126 deg")))
sketch2.addConstraint(Sketcher.Constraint("Angle", 3, Q("-162 deg")))
sketch2.addConstraint(Sketcher.Constraint("DistanceX", 1, 2, -1, 1, 0.4))
sketch2.addConstraint(Sketcher.Constraint("DistanceY", 2, 1, 2, 2, 0.680521))
pad2 = doc.addObject("PartDesign::Pad", "Pad001")
body.addObject(pad2)
pad2.Profile = sketch2
pad2.Length = 45

sketch3 = doc.addObject("Sketcher::SketchObject", "Sketch002")
body.addObject(sketch3)
sketch3.AttachmentSupport = (doc.XY_Plane, [""])
sketch3.MapMode = "FlatFace"
sketch3.AttachmentOffset = App.Placement(App.Vector(0, 0, 45), App.Rotation())
sketch3.addGeometry(Part.Circle(App.Vector(0, 0, 0), App.Vector(0, 0, 1), 1.1), False)
sketch3.addConstraint(Sketcher.Constraint("Coincident", 0, 3, -1, 1))
sketch3.addConstraint(Sketcher.Constraint("Diameter", 0, 2.2))
pocket1 = doc.addObject("PartDesign::Pocket", "Pocket")
body.addObject(pocket1)
pocket1.Profile = sketch3
pocket1.Type = "ThroughAll"

sketch4 = doc.addObject("Sketcher::SketchObject", "Sketch003")
body.addObject(sketch4)
sketch4.AttachmentSupport = (doc.XY_Plane, [""])
sketch4.MapMode = "FlatFace"
sketch4.AttachmentOffset = App.Placement(App.Vector(0, 0, 45), App.Rotation())
sketch4.addGeometry(Part.Circle(App.Vector(0, 0, 0), App.Vector(0, 0, 1), 3), False)
sketch4.addConstraint(Sketcher.Constraint("Coincident", 0, 3, -1, 1))
sketch4.addConstraint(Sketcher.Constraint("Diameter", 0, 6.0))
pocket2 = doc.addObject("PartDesign::Pocket", "Pocket001")
body.addObject(pocket2)
pocket2.Profile = sketch4
pocket2.Length = 0.1

sketch5 = doc.addObject("Sketcher::SketchObject", "Sketch004")
body.addObject(sketch5)
sketch5.AttachmentSupport = (doc.XY_Plane, [""])
sketch5.MapMode = "FlatFace"
sketch5.AttachmentOffset = App.Placement(App.Vector(0, 0, 44.9), App.Rotation())
sketch5.addGeometry(Part.Circle(App.Vector(0, 0, 0), App.Vector(0, 0, 1), 2.5), False)
sketch5.addConstraint(Sketcher.Constraint("Coincident", 0, 3, -1, 1))
sketch5.addConstraint(Sketcher.Constraint("Diameter", 0, 5.0))
pocket3 = doc.addObject("PartDesign::Pocket", "Pocket002")
body.addObject(pocket3)
pocket3.Profile = sketch5
pocket3.Length = 3

doc.recompute()
